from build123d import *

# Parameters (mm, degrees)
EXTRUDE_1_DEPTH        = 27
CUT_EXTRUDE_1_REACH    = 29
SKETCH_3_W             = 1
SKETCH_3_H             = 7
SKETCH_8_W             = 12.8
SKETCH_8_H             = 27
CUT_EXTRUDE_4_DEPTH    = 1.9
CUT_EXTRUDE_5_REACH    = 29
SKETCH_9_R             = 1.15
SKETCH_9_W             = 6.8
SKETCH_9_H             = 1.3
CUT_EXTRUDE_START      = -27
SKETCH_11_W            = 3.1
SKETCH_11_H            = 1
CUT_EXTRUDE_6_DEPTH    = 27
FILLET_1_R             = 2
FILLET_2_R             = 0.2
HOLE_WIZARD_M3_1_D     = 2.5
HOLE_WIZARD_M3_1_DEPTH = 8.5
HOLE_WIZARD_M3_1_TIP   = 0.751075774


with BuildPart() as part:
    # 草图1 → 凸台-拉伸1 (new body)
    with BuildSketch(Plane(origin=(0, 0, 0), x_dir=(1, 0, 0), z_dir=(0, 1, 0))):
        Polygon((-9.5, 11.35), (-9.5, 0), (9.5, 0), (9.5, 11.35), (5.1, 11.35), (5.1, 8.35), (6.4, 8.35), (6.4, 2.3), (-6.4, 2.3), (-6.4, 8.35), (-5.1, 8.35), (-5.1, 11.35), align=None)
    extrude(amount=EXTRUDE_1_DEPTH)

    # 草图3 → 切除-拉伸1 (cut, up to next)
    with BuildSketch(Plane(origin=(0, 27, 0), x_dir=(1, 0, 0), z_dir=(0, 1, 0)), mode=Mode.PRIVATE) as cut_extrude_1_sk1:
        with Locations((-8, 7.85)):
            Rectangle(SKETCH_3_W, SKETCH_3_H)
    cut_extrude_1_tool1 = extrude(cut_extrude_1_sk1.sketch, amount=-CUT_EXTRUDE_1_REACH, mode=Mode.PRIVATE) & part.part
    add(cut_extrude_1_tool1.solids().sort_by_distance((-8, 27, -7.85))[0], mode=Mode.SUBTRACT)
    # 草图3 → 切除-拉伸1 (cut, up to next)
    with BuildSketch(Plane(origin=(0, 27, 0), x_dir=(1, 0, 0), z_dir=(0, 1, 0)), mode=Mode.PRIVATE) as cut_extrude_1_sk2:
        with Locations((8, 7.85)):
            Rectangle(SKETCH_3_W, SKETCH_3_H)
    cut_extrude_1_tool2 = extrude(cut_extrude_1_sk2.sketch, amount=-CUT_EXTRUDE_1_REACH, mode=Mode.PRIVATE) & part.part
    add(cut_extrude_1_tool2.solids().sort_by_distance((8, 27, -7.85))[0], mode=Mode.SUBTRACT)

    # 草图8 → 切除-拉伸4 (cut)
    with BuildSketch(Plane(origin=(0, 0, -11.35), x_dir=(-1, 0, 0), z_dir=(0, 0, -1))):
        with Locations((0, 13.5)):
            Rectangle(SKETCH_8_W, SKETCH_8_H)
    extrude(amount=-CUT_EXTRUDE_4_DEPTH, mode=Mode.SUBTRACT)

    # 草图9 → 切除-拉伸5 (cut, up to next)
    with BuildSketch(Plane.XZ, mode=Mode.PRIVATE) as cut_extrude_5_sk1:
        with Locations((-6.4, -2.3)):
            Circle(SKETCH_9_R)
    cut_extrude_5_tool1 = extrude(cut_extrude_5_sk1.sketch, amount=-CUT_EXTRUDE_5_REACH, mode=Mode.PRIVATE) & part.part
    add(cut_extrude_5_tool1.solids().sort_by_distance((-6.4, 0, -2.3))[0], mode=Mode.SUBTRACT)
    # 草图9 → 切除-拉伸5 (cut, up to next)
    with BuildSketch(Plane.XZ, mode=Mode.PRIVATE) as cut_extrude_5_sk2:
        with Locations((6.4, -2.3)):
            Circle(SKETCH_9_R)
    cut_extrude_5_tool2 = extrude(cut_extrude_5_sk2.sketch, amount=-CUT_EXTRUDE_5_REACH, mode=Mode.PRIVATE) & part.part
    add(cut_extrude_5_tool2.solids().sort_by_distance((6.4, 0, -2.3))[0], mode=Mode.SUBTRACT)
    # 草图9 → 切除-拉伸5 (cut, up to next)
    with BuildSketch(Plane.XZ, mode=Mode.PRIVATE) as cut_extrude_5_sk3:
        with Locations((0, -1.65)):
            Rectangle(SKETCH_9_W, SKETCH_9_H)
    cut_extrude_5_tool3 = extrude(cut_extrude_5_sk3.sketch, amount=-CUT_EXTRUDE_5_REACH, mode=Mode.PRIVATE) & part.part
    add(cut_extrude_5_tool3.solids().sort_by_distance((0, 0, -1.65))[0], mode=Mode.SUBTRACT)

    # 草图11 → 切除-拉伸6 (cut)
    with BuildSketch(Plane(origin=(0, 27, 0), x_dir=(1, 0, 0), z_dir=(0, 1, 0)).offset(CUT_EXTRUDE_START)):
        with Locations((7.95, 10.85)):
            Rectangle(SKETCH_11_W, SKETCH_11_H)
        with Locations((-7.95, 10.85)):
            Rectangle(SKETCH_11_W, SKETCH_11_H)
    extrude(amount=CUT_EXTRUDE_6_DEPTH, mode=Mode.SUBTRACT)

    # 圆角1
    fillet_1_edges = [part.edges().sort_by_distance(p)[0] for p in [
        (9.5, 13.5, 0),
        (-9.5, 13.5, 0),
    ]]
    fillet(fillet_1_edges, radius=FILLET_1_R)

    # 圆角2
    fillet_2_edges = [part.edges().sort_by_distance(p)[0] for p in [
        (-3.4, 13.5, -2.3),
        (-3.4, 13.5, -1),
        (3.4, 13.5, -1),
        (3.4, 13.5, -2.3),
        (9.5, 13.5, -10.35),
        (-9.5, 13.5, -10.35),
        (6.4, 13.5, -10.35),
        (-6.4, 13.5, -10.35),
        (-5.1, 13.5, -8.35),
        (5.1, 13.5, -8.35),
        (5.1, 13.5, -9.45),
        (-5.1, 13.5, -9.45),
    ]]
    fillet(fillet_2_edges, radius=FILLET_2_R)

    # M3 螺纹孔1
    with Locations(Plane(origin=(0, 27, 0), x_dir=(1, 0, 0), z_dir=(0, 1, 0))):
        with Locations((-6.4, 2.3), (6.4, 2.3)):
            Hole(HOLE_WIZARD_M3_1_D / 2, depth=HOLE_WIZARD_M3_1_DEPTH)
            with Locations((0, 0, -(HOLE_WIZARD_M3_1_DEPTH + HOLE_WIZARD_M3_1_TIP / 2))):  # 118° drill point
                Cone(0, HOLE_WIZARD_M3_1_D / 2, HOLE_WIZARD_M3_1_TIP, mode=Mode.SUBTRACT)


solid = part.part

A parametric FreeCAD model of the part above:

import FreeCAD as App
import Part
import Sketcher

V = App.Vector


def edges_at(feature, points):
    """Names of the edges that pass closest to the given points."""
    edges = feature.Shape.Edges
    near = lambda p: min(range(len(edges)), key=lambda i: edges[i].distToShape(Part.Vertex(*p))[0])
    return sorted({f"Edge{near(p) + 1}" for p in points})


def add_polygon(sketch, points):
    """Adds a closed chain of lines whose ends are joined by coincident constraints."""
    first, n = sketch.GeometryCount, len(points)
    for a, b in zip(points, points[1:] + points[:1]):
        sketch.addGeometry(Part.LineSegment(App.Vector(*a, 0), App.Vector(*b, 0)), False)
    for i in range(n):
        sketch.addConstraint(Sketcher.Constraint("Coincident", first + i, 2, first + (i + 1) % n, 1))

doc = App.newDocument("Part")
body = doc.addObject("PartDesign::Body", "Body")

sketch1 = doc.addObject("Sketcher::SketchObject", "Sketch")
body.addObject(sketch1)
sketch1.AttachmentSupport = (doc.XZ_Plane, [""])
sketch1.MapMode = "FlatFace"
add_polygon(sketch1, [(-9.5, -11.3), (-9.5, 0), (9.5, 0), (9.5, -11.3), (5.1, -11.3), (5.1, -8.3), (6.4, -8.3), (6.4, -2.3), (-6.4, -2.3), (-6.4, -8.3), (-5.1, -8.3), (-5.1, -11.3)])
sketch1.addConstraint([
    Sketcher.Constraint("Vertical", 0),
    Sketcher.Constraint("Horizontal", 1),
    Sketcher.Constraint("Vertical", 2),
    Sketcher.Constraint("Horizontal", 3),
    Sketcher.Constraint("Vertical", 4),
    Sketcher.Constraint("Horizontal", 5),
    Sketcher.Constraint("Vertical", 6),
    Sketcher.Constraint("Horizontal", 7),
    Sketcher.Constraint("Vertical", 8),
    Sketcher.Constraint("Horizontal", 9),
    Sketcher.Constraint("Vertical", 10),
    Sketcher.Constraint("Horizontal", 11),
    Sketcher.Constraint("Symmetric", 0, 2, 1, 2, -1, 1),
    Sketcher.Constraint("Symmetric", 5, 2, 8, 2, -2),
    Sketcher.Constraint("Symmetric", 3, 2, 10, 2, -2),
    Sketcher.Constraint("DistanceX", 1, 1, 1, 2, 19.0),
    Sketcher.Constraint("DistanceY", 4, 1, 4, 2, 3.0),
    Sketcher.Constraint("DistanceX", 3, 2, 3, 1, 4.4),
    Sketcher.Constraint("DistanceX", 5, 1, 5, 2, 1.3),
    Sketcher.Constraint("DistanceY", 0, 1, 0, 2, 11.35),
    Sketcher.Constraint("DistanceY", 6, 1, 6, 2, 6.05),
])
pad1 = doc.addObject("PartDesign::Pad", "Pad")
body.addObject(pad1)
pad1.Profile = sketch1
pad1.Length = 27
pad1.Reversed = True

sketch2 = doc.addObject("Sketcher::SketchObject", "Sketch001")
body.addObject(sketch2)
sketch2.AttachmentSupport = (doc.XZ_Plane, [""])
sketch2.MapMode = "FlatFace"
sketch2.AttachmentOffset = App.Placement(V(0, 0, -27), App.Rotation())
add_polygon(sketch2, [(-8.5, -11.3), (-8.5, -4.3), (-7.5, -4.3), (-7.5, -11.3)])
sketch2.addConstraint([
    Sketcher.Constraint("Vertical", 0),
    Sketcher.Constraint("Horizontal", 1),
    Sketcher.Constraint("Vertical", 2),
    Sketcher.Constraint("Horizontal", 3),
    Sketcher.Constraint("DistanceX", 1, 1, 1, 2, 1.0),
    Sketcher.Constraint("DistanceY", 0, 1, 0, 2, 7.0),
    Sketcher.Constraint("DistanceX", 0, 2, -1, 1, 8.5),
    Sketcher.Constraint("DistanceY", 0, 2, -1, 1, 4.35),
])
pocket1 = doc.addObject("PartDesign::Pocket", "Pocket")
body.addObject(pocket1)
pocket1.Profile = sketch2
pocket1.Type = "UpToFirst"
pocket1.Reversed = True

sketch3 = doc.addObject("Sketcher::SketchObject", "Sketch002")
body.addObject(sketch3)
sketch3.AttachmentSupport = (doc.XZ_Plane, [""])
sketch3.MapMode = "FlatFace"
sketch3.AttachmentOffset = App.Placement(V(0, 0, -27), App.Rotation())
add_polygon(sketch3, [(7.5, -11.3), (7.5, -4.3), (8.5, -4.3), (8.5, -11.3)])
sketch3.addConstraint([
    Sketcher.Constraint("Vertical", 0),
    Sketcher.Constraint("Horizontal", 1),
    Sketcher.Constraint("Vertical", 2),
    Sketcher.Constraint("Horizontal", 3),
    Sketcher.Constraint("DistanceX", 1, 1, 1, 2, 1.0),
    Sketcher.Constraint("DistanceY", 0, 1, 0, 2, 7.0),
    Sketcher.Constraint("DistanceX", -1, 1, 0, 2, 7.5),
    Sketcher.Constraint("DistanceY", 0, 2, -1, 1, 4.35),
])
pocket2 = doc.addObject("PartDesign::Pocket", "Pocket001")
body.addObject(pocket2)
pocket2.Profile = sketch3
pocket2.Type = "UpToFirst"
pocket2.Reversed = True

sketch4 = doc.addObject("Sketcher::SketchObject", "Sketch003")
body.addObject(sketch4)
sketch4.AttachmentSupport = (doc.XY_Plane, [""])
sketch4.MapMode = "FlatFace"
sketch4.AttachmentOffset = App.Placement(V(0, 0, -11.35), App.Rotation())
add_polygon(sketch4, [(6, 27), (6, 0), (-6, 0), (-6, 27)])
sketch4.addConstraint([
    Sketcher.Constraint("Vertical", 0),
    Sketcher.Constraint("Horizontal", 1),
    Sketcher.Constraint("Vertical", 2),
    Sketcher.Constraint("Horizontal", 3),
    Sketcher.Constraint("Symmetric", 0, 2, 1, 2, -1, 1),
    Sketcher.Constraint("DistanceY", 0, 2, 0, 1, 27.0),
    Sketcher.Constraint("DistanceX", 1, 2, 1, 1, 12.8),
])
pocket3 = doc.addObject("PartDesign::Pocket", "Pocket002")
body.addObject(pocket3)
pocket3.Profile = sketch4
pocket3.Length = 1.9
pocket3.Reversed = True

sketch5 = doc.addObject("Sketcher::SketchObject", "Sketch004")
body.addObject(sketch5)
sketch5.AttachmentSupport = (doc.XZ_Plane, [""])
sketch5.MapMode = "FlatFace"
sketch5.addGeometry(Part.Circle(V(-6.4, -2.3, 0), V(0, 0, 1), 1.1), False)
sketch5.addConstraint([
    Sketcher.Constraint("Diameter", 0, 2.3),
    Sketcher.Constraint("DistanceX", 0, 3, -1, 1, 6.4),
    Sketcher.Constraint("DistanceY", 0, 3, -1, 1, 2.3),
])
pocket4 = doc.addObject("PartDesign::Pocket", "Pocket003")
body.addObject(pocket4)
pocket4.Profile = sketch5
pocket4.Type = "UpToFirst"

sketch6 = doc.addObject("Sketcher::SketchObject", "Sketch005")
body.addObject(sketch6)
sketch6.AttachmentSupport = (doc.XZ_Plane, [""])
sketch6.MapMode = "FlatFace"
sketch6.addGeometry(Part.Circle(V(6.4, -2.3, 0), V(0, 0, 1), 1.1), False)
sketch6.addConstraint([
    Sketcher.Constraint("Diameter", 0, 2.3),
    Sketcher.Constraint("DistanceX", -1, 1, 0, 3, 6.4),
    Sketcher.Constraint("DistanceY", 0, 3, -1, 1, 2.3),
])
pocket5 = doc.addObject("PartDesign::Pocket", "Pocket004")
body.addObject(pocket5)
pocket5.Profile = sketch6
pocket5.Type = "UpToFirst"

sketch7 = doc.addObject("Sketcher::SketchObject", "Sketch006")
body.addObject(sketch7)
sketch7.AttachmentSupport = (doc.XZ_Plane, [""])
sketch7.MapMode = "FlatFace"
add_polygon(sketch7, [(-3.4, -1), (-3.4, -2.3), (3.4, -2.3), (3.4, -1)])
sketch7.addConstraint([
    Sketcher.Constraint("Vertical", 0),
    Sketcher.Constraint("Horizontal", 1),
    Sketcher.Constraint("Vertical", 2),
    Sketcher.Constraint("Horizontal", 3),
    Sketcher.Constraint("DistanceX", 1, 1, 1, 2, 6.8),
    Sketcher.Constraint("DistanceY", 0, 2, 0, 1, 1.3),
    Sketcher.Constraint("DistanceY", 2, 2, -1, 1, 1.0),
    Sketcher.Constraint("DistanceX", 0, 2, -1, 1, 3.4),
])
pocket6 = doc.addObject("PartDesign::Pocket", "Pocket005")
body.addObject(pocket6)
pocket6.Profile = sketch7
pocket6.Type = "UpToFirst"

sketch8 = doc.addObject("Sketcher::SketchObject", "Sketch007")
body.addObject(sketch8)
sketch8.AttachmentSupport = (doc.XZ_Plane, [""])
sketch8.MapMode = "FlatFace"
add_polygon(sketch8, [(6.4, -11.3), (6.4, -10.3), (9.5, -10.3), (9.5, -11.3)])
add_polygon(sketch8, [(-9.5, -11.3), (-9.5, -10.3), (-6.4, -10.3), (-6.4, -11.3)])
sketch8.addConstraint([
    Sketcher.Constraint("Vertical", 0),
    Sketcher.Constraint("Horizontal", 1),
    Sketcher.Constraint("Vertical", 2),
    Sketcher.Constraint("Horizontal", 3),
    Sketcher.Constraint("Vertical", 4),
    Sketcher.Constraint("Horizontal", 5),
    Sketcher.Constraint("Vertical", 6),
    Sketcher.Constraint("Horizontal", 7),
    Sketcher.Constraint("Symmetric", 1, 2, 4, 2, -2),
    Sketcher.Constraint("Symmetric", 3, 2, 6, 2, -2),
    Sketcher.Constraint("DistanceY", 0, 1, 0, 2, 1.0),
    Sketcher.Constraint("DistanceX", 1, 1, 1, 2, 3.1),
    Sketcher.Constraint("DistanceX", 4, 2, 1, 2, 19.0),
    Sketcher.Constraint("DistanceY", 0, 2, -1, 1, 10.35),
])
pocket7 = doc.addObject("PartDesign::Pocket", "Pocket006")
body.addObject(pocket7)
pocket7.Profile = sketch8
pocket7.Length = 27
doc.recompute()

fillet = doc.addObject("PartDesign::Fillet", "Fillet")
body.addObject(fillet)
fillet.Base = (pocket7, edges_at(pocket7, [(9.5, 13.5, 0), (-9.5, 13.5, 0)]))
fillet.Radius = 2
doc.recompute()

fillet2 = doc.addObject("PartDesign::Fillet", "Fillet001")
body.addObject(fillet2)
fillet2.Base = (fillet, edges_at(fillet, [
    (-3.4, 13.5, -2.3),
    (-3.4, 13.5, -1),
    (3.4, 13.5, -1),
    (3.4, 13.5, -2.3),
    (9.5, 13.5, -10.35),
    (-9.5, 13.5, -10.35),
    (6.4, 13.5, -10.35),
    (-6.4, 13.5, -10.35),
    (-5.1, 13.5, -8.35),
    (5.1, 13.5, -8.35),
    (5.1, 13.5, -9.45),
    (-5.1, 13.5, -9.45),
]))
fillet2.Radius = 0.2

sketch9 = doc.addObject("Sketcher::SketchObject", "Sketch008")
body.addObject(sketch9)
sketch9.AttachmentSupport = (doc.XZ_Plane, [""])
sketch9.MapMode = "FlatFace"
sketch9.AttachmentOffset = App.Placement(V(0, 0, -27), App.Rotation())
sketch9.addGeometry([
    Part.Circle(V(-6.4, -2.3, 0), V(0, 0, 1), 1.2),
    Part.Circle(V(6.4, -2.3, 0), V(0, 0, 1), 1.2),
], False)
sketch9.addConstraint([
    Sketcher.Constraint("Equal", 0, 1),
    Sketcher.Constraint("Symmetric", 0, 3, 1, 3, -2),
    Sketcher.Constraint("Diameter", 0, 2.5),
    Sketcher.Constraint("DistanceX", 0, 3, -1, 1, 6.4),
    Sketcher.Constraint("DistanceY", 0, 3, -1, 1, 2.3),
])
doc.recompute()
hole = doc.addObject("PartDesign::Hole", "Hole")
body.addObject(hole)
hole.Profile = sketch9
hole.ThreadType = "None"
hole.Diameter = 2.5
hole.DepthType = "Dimension"
hole.Depth = 8.5
hole.DrillPoint = "Angled"
hole.DrillPointAngle = 118
hole.Reversed = True

doc.recompute()
